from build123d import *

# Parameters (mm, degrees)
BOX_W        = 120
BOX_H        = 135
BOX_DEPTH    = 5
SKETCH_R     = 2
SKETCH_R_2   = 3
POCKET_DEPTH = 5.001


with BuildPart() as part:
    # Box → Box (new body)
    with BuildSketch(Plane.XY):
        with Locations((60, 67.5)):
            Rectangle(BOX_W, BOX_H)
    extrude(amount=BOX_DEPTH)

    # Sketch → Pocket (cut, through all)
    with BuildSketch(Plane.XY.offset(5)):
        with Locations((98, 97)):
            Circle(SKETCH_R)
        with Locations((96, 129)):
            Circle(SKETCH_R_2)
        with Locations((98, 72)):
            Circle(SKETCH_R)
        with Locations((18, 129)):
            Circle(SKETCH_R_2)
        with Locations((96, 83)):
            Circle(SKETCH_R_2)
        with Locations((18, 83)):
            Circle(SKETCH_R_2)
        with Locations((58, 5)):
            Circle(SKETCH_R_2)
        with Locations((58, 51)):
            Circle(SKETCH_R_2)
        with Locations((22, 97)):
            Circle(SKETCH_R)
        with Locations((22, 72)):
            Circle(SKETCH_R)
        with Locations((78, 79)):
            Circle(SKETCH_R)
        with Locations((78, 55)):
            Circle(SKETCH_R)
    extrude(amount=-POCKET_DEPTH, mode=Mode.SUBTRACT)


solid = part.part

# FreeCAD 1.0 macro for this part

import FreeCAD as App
import Part
import Sketcher
from FreeCAD import Vector

doc = App.newDocument("Part")
body = doc.addObject("PartDesign::Body", "Body")

# Sketch on XY plane
sketch1 = doc.addObject("Sketcher::SketchObject", "Sketch")
body.addObject(sketch1)
sketch1.AttachmentSupport = (doc.XY_Plane, [""])
sketch1.MapMode = "FlatFace"
sketch1.addGeometry(Part.LineSegment(Vector(0, 135, 0), Vector(0, 0, 0)), False)
sketch1.addGeometry(Part.LineSegment(Vector(0, 0, 0), Vector(120, 0, 0)), False)
sketch1.addGeometry(Part.LineSegment(Vector(120, 0, 0), Vector(120, 135, 0)), False)
sketch1.addGeometry(Part.LineSegment(Vector(120, 135, 0), Vector(0, 135, 0)), False)
sketch1.addConstraint(Sketcher.Constraint("Coincident", 0, 2, 1, 1))
sketch1.addConstraint(Sketcher.Constraint("Coincident", 1, 2, 2, 1))
sketch1.addConstraint(Sketcher.Constraint("Coincident", 2, 2, 3, 1))
sketch1.addConstraint(Sketcher.Constraint("Coincident", 3, 2, 0, 1))
sketch1.addConstraint(Sketcher.Constraint("Vertical", 0))
sketch1.addConstraint(Sketcher.Constraint("Horizontal", 1))
sketch1.addConstraint(Sketcher.Constraint("Vertical", 2))
sketch1.addConstraint(Sketcher.Constraint("Horizontal", 3))
sketch1.addConstraint(Sketcher.Constraint("Coincident", 0, 2, -1, 1))
sketch1.addConstraint(Sketcher.Constraint("DistanceX", 1, 1, 1, 2, 120.0))
sketch1.addConstraint(Sketcher.Constraint("DistanceY", 0, 2, 0, 1, 135.0))
pad1 = doc.addObject("PartDesign::Pad", "Pad")
body.addObject(pad1)
pad1.Profile = sketch1
pad1.Length = 5

# Sketch on XY plane
sketch2 = doc.addObject("Sketcher::SketchObject", "Sketch001")
body.addObject(sketch2)
sketch2.AttachmentSupport = (doc.XY_Plane, [""])
sketch2.MapMode = "FlatFace"
sketch2.AttachmentOffset = App.Placement(Vector(0, 0, 5), App.Rotation())
sketch2.addGeometry(Part.Circle(Vector(98, 97, 0), Vector(0, 0, 1), 2), False)
sketch2.addGeometry(Part.Circle(Vector(96, 129, 0), Vector(0, 0, 1), 3), False)
sketch2.addGeometry(Part.Circle(Vector(98, 72, 0), Vector(0, 0, 1), 2), False)
sketch2.addGeometry(Part.Circle(Vector(18, 129, 0), Vector(0, 0, 1), 3), False)
sketch2.addGeometry(Part.Circle(Vector(96, 83, 0), Vector(0, 0, 1), 3), False)
sketch2.addGeometry(Part.Circle(Vector(18, 83, 0), Vector(0, 0, 1), 3), False)
sketch2.addGeometry(Part.Circle(Vector(58, 5, 0), Vector(0, 0, 1), 3), False)
sketch2.addGeometry(Part.Circle(Vector(58, 51, 0), Vector(0, 0, 1), 3), False)
sketch2.addGeometry(Part.Circle(Vector(22, 97, 0), Vector(0, 0, 1), 2), False)
sketch2.addGeometry(Part.Circle(Vector(22, 72, 0), Vector(0, 0, 1), 2), False)
sketch2.addGeometry(Part.Circle(Vector(78, 79, 0), Vector(0, 0, 1), 2), False)
sketch2.addGeometry(Part.Circle(Vector(78, 55, 0), Vector(0, 0, 1), 2), False)
sketch2.addConstraint(Sketcher.Constraint("Equal", 0, 2))
sketch2.addConstraint(Sketcher.Constraint("Equal", 1, 3))
sketch2.addConstraint(Sketcher.Constraint("Equal", 3, 4))
sketch2.addConstraint(Sketcher.Constraint("Equal", 4, 5))
sketch2.addConstraint(Sketcher.Constraint("Equal", 5, 6))
sketch2.addConstraint(Sketcher.Constraint("Equal", 6, 7))
sketch2.addConstraint(Sketcher.Constraint("Equal", 2, 8))
sketch2.addConstraint(Sketcher.Constraint("Equal", 8, 9))
sketch2.addConstraint(Sketcher.Constraint("Equal", 9, 10))
sketch2.addConstraint(Sketcher.Constraint("Equal", 10, 11))
sketch2.addConstraint(Sketcher.Constraint("Horizontal", 1, 3, 3, 3))
sketch2.addConstraint(Sketcher.Constraint("Horizontal", 4, 3, 5, 3))
sketch2.addConstraint(Sketcher.Constraint("Horizontal", 0, 3, 8, 3))
sketch2.addConstraint(Sketcher.Constraint("Horizontal", 2, 3, 9, 3))
sketch2.addConstraint(Sketcher.Constraint("Vertical", 0, 3, 2, 3))
sketch2.addConstraint(Sketcher.Constraint("Vertical", 1, 3, 4, 3))
sketch2.addConstraint(Sketcher.Constraint("Vertical", 3, 3, 5, 3))
sketch2.addConstraint(Sketcher.Constraint("Vertical", 6, 3, 7, 3))
sketch2.addConstraint(Sketcher.Constraint("Vertical", 8, 3, 9, 3))
sketch2.addConstraint(Sketcher.Constraint("Vertical", 10, 3, 11, 3))
sketch2.addConstraint(Sketcher.Constraint("Diameter", 0, 4.0))
sketch2.addConstraint(Sketcher.Constraint("Diameter", 1, 6.0))
sketch2.addConstraint(Sketcher.Constraint("DistanceX", -1, 1, 0, 3, 98.0))
sketch2.addConstraint(Sketcher.Constraint("DistanceY", -1, 1, 0, 3, 97.0))
sketch2.addConstraint(Sketcher.Constraint("DistanceX", -1, 1, 1, 3, 96.0))
sketch2.addConstraint(Sketcher.Constraint("DistanceY", -1, 1, 1, 3, 129.0))
sketch2.addConstraint(Sketcher.Constraint("DistanceY", -1, 1, 2, 3, 72.0))
sketch2.addConstraint(Sketcher.Constraint("DistanceX", -1, 1, 3, 3, 18.0))
sketch2.addConstraint(Sketcher.Constraint("DistanceY", -1, 1, 4, 3, 83.0))
sketch2.addConstraint(Sketcher.Constraint("DistanceX", -1, 1, 6, 3, 58.0))
sketch2.addConstraint(Sketcher.Constraint("DistanceY", -1, 1, 6, 3, 5.0))
sketch2.addConstraint(Sketcher.Constraint("DistanceY", -1, 1, 7, 3, 51.0))
sketch2.addConstraint(Sketcher.Constraint("DistanceX", -1, 1, 8, 3, 22.0))
sketch2.addConstraint(Sketcher.Constraint("DistanceX", -1, 1, 10, 3, 78.0))
sketch2.addConstraint(Sketcher.Constraint("DistanceY", -1, 1, 10, 3, 79.0))
sketch2.addConstraint(Sketcher.Constraint("DistanceY", -1, 1, 11, 3, 55.0))
pocket1 = doc.addObject("PartDesign::Pocket", "Pocket")
body.addObject(pocket1)
pocket1.Profile = sketch2
pocket1.Type = "ThroughAll"

doc.recompute()
